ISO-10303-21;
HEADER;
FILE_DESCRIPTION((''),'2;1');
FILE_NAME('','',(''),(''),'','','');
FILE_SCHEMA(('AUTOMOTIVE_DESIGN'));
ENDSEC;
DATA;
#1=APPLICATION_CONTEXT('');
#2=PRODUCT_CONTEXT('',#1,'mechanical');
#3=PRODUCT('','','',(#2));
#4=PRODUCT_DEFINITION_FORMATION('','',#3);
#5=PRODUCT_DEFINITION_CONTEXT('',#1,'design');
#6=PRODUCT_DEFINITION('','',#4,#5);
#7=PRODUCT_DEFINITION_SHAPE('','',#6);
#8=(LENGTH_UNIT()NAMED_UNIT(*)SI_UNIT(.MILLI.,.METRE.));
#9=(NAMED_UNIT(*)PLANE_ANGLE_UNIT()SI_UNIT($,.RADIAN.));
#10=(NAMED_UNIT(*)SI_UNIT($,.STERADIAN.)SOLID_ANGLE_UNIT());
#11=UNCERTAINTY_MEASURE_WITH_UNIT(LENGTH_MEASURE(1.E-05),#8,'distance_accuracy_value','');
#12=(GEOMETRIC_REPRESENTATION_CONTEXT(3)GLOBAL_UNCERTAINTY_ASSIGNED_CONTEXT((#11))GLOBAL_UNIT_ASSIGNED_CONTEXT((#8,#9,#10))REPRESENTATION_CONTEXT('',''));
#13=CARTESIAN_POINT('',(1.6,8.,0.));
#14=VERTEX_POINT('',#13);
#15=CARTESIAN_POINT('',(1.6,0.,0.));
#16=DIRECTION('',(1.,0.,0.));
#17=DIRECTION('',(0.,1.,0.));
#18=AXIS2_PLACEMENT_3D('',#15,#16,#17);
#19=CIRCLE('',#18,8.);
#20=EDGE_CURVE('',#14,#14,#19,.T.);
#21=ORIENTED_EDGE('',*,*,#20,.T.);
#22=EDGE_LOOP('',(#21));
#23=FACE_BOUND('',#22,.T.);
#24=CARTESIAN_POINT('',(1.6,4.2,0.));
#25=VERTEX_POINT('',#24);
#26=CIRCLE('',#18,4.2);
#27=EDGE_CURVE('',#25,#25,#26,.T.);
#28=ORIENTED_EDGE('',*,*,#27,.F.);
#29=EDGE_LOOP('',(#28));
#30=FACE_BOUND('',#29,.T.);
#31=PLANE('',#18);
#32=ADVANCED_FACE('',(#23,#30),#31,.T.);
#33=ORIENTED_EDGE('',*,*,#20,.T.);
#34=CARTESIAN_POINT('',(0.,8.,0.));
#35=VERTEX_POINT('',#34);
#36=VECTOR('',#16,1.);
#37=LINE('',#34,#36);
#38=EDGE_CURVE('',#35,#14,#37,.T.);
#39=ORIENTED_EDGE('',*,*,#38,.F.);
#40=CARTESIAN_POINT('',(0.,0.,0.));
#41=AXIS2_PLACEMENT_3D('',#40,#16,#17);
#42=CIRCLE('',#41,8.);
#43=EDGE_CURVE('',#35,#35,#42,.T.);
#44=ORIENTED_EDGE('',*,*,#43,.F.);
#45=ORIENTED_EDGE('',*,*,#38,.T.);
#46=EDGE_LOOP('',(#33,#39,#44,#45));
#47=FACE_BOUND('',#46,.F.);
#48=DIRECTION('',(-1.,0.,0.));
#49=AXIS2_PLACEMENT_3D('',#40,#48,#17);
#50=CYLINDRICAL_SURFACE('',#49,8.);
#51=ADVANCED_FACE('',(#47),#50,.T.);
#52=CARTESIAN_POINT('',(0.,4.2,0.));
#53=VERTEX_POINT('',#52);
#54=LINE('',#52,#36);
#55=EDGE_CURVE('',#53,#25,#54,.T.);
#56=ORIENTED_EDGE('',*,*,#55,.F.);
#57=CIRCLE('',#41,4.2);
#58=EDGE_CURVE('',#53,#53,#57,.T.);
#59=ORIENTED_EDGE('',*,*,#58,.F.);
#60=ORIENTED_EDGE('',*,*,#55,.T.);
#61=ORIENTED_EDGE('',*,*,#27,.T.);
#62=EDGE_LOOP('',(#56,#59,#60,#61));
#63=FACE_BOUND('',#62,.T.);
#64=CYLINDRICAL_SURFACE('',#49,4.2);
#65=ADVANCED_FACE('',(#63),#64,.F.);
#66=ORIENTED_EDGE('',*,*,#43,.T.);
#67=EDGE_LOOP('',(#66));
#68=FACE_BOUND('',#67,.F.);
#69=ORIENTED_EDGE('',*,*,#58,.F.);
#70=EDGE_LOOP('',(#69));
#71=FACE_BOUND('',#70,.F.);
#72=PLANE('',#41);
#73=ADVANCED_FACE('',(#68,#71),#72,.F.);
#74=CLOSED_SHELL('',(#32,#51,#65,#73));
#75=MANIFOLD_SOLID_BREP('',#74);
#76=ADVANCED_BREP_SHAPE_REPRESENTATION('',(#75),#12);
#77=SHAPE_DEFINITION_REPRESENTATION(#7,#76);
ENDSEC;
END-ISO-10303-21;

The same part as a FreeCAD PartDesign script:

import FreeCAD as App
import Part
import Sketcher
Q = App.Units.Quantity

doc = App.newDocument("Part")
body = doc.addObject("PartDesign::Body", "Body")

sketch1 = doc.addObject("Sketcher::SketchObject", "Sketch")
body.addObject(sketch1)
sketch1.AttachmentSupport = (doc.YZ_Plane, [""])
sketch1.MapMode = "FlatFace"
sketch1.addGeometry(Part.Circle(App.Vector(0, 0, 0), App.Vector(0, 0, 1), 8), False)
sketch1.addGeometry(Part.Circle(App.Vector(0, 0, 0), App.Vector(0, 0, 1), 4.2), False)
sketch1.addConstraint(Sketcher.Constraint("Coincident", 0, 3, -1, 1))
sketch1.addConstraint(Sketcher.Constraint("Coincident", 1, 3, -1, 1))
sketch1.addConstraint(Sketcher.Constraint("Diameter", 0, Q("16 mm")))
sketch1.addConstraint(Sketcher.Constraint("Diameter", 1, Q("8.4 mm")))
pad1 = doc.addObject("PartDesign::Pad", "Pad")
body.addObject(pad1)
pad1.Profile = sketch1
pad1.Length = 1.6

doc.recompute()
